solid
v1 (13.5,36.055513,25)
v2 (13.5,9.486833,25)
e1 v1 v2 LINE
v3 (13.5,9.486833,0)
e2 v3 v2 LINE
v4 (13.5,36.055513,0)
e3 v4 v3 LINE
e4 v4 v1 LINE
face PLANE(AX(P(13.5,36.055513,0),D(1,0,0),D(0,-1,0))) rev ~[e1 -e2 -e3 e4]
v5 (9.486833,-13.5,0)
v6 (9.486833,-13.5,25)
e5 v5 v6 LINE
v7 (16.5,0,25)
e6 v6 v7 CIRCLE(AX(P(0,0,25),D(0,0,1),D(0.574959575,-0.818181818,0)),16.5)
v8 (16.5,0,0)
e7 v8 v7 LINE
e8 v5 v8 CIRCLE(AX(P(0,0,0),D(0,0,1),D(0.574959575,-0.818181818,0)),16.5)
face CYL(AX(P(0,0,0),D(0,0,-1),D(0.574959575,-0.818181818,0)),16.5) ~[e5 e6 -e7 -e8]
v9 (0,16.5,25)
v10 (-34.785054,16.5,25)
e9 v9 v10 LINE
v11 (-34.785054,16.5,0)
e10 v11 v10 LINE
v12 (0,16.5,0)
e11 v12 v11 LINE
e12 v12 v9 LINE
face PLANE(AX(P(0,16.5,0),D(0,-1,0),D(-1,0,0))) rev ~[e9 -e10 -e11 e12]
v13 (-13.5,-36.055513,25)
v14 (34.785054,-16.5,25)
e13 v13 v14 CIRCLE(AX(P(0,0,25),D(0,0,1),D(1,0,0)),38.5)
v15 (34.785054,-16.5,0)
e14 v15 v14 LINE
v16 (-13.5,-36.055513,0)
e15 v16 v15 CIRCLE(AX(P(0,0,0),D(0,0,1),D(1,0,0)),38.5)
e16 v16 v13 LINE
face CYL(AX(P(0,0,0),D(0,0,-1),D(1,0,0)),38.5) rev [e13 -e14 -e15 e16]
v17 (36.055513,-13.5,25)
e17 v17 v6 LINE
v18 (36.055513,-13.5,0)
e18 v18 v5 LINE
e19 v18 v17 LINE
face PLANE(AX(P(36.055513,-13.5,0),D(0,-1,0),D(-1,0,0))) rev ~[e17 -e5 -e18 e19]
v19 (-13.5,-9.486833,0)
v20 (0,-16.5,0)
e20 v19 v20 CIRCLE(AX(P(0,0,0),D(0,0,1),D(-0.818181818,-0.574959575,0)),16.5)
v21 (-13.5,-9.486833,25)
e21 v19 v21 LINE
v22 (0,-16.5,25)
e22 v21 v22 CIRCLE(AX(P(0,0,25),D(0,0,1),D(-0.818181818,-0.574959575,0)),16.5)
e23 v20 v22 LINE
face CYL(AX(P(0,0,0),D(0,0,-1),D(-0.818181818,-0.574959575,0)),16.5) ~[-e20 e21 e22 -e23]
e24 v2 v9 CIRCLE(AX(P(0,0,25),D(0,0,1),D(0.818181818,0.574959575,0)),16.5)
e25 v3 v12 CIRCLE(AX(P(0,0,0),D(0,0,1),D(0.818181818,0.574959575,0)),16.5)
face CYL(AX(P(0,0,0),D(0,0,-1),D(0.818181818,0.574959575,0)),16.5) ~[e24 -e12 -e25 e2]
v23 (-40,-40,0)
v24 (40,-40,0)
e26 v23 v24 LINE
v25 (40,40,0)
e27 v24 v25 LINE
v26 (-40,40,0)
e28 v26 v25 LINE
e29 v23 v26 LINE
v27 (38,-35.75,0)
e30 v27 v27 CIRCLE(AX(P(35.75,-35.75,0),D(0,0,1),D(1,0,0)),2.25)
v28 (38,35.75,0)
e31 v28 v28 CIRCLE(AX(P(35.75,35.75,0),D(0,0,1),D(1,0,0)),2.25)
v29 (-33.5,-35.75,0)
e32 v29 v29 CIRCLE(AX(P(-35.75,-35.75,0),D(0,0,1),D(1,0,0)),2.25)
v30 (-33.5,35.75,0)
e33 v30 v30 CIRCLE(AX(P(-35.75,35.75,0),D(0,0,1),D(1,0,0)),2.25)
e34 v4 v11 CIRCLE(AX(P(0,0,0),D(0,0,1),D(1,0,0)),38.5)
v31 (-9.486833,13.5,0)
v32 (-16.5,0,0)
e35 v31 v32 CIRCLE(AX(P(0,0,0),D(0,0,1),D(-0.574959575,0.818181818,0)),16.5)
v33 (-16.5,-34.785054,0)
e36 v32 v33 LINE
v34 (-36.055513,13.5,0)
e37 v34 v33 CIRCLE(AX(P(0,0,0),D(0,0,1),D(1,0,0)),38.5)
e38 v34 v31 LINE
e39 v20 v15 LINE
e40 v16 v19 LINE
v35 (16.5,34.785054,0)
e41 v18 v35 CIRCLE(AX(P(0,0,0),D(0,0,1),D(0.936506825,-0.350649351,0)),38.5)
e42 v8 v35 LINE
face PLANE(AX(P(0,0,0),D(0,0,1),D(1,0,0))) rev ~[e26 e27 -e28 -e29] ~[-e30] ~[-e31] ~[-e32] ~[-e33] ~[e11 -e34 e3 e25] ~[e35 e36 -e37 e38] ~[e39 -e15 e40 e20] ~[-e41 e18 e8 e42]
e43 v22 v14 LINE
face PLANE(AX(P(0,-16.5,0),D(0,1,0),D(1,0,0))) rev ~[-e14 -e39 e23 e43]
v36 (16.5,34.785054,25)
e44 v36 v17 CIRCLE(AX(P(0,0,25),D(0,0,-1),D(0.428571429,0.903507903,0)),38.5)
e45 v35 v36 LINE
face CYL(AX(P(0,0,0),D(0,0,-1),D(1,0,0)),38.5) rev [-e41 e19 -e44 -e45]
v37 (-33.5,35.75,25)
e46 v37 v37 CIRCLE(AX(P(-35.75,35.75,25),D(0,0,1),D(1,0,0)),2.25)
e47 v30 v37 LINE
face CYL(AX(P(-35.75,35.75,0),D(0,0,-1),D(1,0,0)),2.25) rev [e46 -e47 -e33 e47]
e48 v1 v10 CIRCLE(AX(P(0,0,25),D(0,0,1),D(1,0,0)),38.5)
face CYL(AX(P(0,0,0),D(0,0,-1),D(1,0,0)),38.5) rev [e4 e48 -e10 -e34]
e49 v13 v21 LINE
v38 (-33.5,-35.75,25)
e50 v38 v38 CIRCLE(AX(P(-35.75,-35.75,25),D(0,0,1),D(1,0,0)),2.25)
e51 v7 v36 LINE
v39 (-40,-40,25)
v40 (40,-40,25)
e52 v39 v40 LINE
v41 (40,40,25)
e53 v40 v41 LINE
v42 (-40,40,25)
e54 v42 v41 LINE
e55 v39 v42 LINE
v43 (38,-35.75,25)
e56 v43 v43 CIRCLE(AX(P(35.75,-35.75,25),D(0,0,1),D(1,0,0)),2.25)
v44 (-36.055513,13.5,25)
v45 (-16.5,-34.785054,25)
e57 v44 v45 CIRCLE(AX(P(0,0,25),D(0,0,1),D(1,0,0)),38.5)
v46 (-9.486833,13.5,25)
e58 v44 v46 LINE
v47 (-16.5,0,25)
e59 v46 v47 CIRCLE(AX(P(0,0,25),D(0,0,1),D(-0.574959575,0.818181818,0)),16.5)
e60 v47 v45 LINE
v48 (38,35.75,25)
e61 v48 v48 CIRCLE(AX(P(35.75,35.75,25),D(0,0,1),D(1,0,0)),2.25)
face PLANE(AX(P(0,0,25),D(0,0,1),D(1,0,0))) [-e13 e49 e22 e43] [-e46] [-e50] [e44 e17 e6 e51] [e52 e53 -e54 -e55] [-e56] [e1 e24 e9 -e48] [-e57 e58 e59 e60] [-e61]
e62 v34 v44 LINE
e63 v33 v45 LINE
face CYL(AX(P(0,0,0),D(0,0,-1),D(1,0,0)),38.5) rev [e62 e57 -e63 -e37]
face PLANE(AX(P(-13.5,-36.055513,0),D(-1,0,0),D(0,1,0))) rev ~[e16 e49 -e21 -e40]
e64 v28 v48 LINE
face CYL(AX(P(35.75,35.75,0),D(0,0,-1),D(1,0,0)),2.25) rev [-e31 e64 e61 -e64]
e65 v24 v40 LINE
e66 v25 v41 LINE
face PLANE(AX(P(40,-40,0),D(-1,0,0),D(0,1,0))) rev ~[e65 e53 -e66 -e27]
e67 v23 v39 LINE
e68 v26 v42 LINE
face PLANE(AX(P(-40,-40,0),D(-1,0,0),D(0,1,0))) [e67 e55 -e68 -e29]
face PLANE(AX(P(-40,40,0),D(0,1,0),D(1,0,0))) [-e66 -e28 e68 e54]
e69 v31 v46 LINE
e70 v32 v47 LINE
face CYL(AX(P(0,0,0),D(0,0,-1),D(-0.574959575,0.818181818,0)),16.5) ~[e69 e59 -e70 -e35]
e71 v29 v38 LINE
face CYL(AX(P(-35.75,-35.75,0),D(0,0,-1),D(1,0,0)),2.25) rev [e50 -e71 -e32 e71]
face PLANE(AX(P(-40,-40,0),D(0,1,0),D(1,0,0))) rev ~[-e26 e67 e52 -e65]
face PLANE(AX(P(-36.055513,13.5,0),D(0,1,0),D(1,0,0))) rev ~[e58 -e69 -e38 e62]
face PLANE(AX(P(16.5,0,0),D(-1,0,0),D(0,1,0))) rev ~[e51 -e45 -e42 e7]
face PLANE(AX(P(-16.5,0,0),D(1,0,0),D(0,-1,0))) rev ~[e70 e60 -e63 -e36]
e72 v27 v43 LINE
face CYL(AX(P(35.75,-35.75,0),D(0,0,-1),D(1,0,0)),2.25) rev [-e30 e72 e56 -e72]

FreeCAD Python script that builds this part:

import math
import FreeCAD as App
import Part
import Sketcher
Q = App.Units.Quantity

doc = App.newDocument("Part")
body = doc.addObject("PartDesign::Body", "Body")

# Sketch on XY plane
sketch1 = doc.addObject("Sketcher::SketchObject", "Sketch")
body.addObject(sketch1)
sketch1.AttachmentSupport = (doc.XY_Plane, [""])
sketch1.MapMode = "FlatFace"
sketch1.addGeometry([
    Part.LineSegment(App.Vector(-40, 40, 0), App.Vector(-40, -40, 0)),  # 0
    Part.LineSegment(App.Vector(-40, -40, 0), App.Vector(40, -40, 0)),  # 1
    Part.LineSegment(App.Vector(40, -40, 0), App.Vector(40, 40, 0)),  # 2
    Part.LineSegment(App.Vector(40, 40, 0), App.Vector(-40, 40, 0)),  # 3
    Part.Circle(App.Vector(-35.75, -35.75, 0), App.Vector(0, 0, 1), 2.25),  # 4
    Part.Circle(App.Vector(35.75, -35.75, 0), App.Vector(0, 0, 1), 2.25),  # 5
    Part.Circle(App.Vector(-35.75, 35.75, 0), App.Vector(0, 0, 1), 2.25),  # 6
    Part.Circle(App.Vector(0, 0, 0), App.Vector(0, 0, 1), 38.5),  # 7
    Part.Circle(App.Vector(35.75, 35.75, 0), App.Vector(0, 0, 1), 2.25),  # 8
], False)
sketch1.addConstraint([
    Sketcher.Constraint("Coincident", 0, 2, 1, 1),
    Sketcher.Constraint("Coincident", 1, 2, 2, 1),
    Sketcher.Constraint("Coincident", 2, 2, 3, 1),
    Sketcher.Constraint("Coincident", 3, 2, 0, 1),
    Sketcher.Constraint("Vertical", 0),
    Sketcher.Constraint("Horizontal", 1),
    Sketcher.Constraint("Vertical", 2),
    Sketcher.Constraint("Horizontal", 3),
    Sketcher.Constraint("Coincident", 7, 3, -1, 1),
    Sketcher.Constraint("Equal", 4, 5),
    Sketcher.Constraint("Equal", 5, 6),
    Sketcher.Constraint("Equal", 6, 8),
    Sketcher.Constraint("Symmetric", 5, 3, 6, 3, -1, 1),
    Sketcher.Constraint("Symmetric", 4, 3, 8, 3, -1, 1),
    Sketcher.Constraint("Symmetric", 0, 2, 2, 2, -1, 1),
    Sketcher.Constraint("Symmetric", 4, 3, 5, 3, -2),
    Sketcher.Constraint("Equal", 3, 0),
    Sketcher.Constraint("Diameter", 7, Q("77 mm")),
    Sketcher.Constraint("Diameter", 4, Q("4.5 mm")),
    Sketcher.Constraint("DistanceX", 1, 1, 1, 2, Q("80 mm")),
    Sketcher.Constraint("DistanceX", 4, 3, 5, 3, Q("71.5 mm")),
    Sketcher.Constraint("DistanceY", 4, 3, 6, 3, Q("71.5 mm")),
])
pad1 = doc.addObject("PartDesign::Pad", "Pad")
body.addObject(pad1)
pad1.Profile = sketch1
pad1.Length = 25

# Sketch on XY plane
sketch2 = doc.addObject("Sketcher::SketchObject", "Sketch001")
body.addObject(sketch2)
sketch2.AttachmentSupport = (doc.XY_Plane, [""])
sketch2.MapMode = "FlatFace"
sketch2.addGeometry([
    Part.ArcOfCircle(Part.Circle(App.Vector(0, 0, 0), App.Vector(0, 0, 1), 16.5), math.radians(-54.903199), math.radians(0)),  # 0
    Part.LineSegment(App.Vector(16.5, 0, 0), App.Vector(16.5, 34.785054, 0)),  # 1
    Part.ArcOfCircle(Part.Circle(App.Vector(0, 0, 0), App.Vector(0, 0, 1), 38.5), math.radians(64.623066), math.radians(69.472963)),  # 2
    Part.LineSegment(App.Vector(13.5, 36.055513, 0), App.Vector(13.5, 9.486833, 0)),  # 3
    Part.ArcOfCircle(Part.Circle(App.Vector(0, 0, 0), App.Vector(0, 0, 1), 16.5), math.radians(35.096801), math.radians(90)),  # 4
    Part.LineSegment(App.Vector(0, 16.5, 0), App.Vector(-34.785054, 16.5, 0)),  # 5
    Part.ArcOfCircle(Part.Circle(App.Vector(0, 0, 0), App.Vector(0, 0, 1), 38.5), math.radians(154.623066), math.radians(159.472963)),  # 6
    Part.LineSegment(App.Vector(-36.055513, 13.5, 0), App.Vector(-9.486833, 13.5, 0)),  # 7
    Part.ArcOfCircle(Part.Circle(App.Vector(0, 0, 0), App.Vector(0, 0, 1), 16.5), math.radians(125.096801), math.radians(180)),  # 8
    Part.LineSegment(App.Vector(-16.5, 0, 0), App.Vector(-16.5, -34.785054, 0)),  # 9
    Part.ArcOfCircle(Part.Circle(App.Vector(0, 0, 0), App.Vector(0, 0, 1), 38.5), math.radians(-115.376934), math.radians(-110.527037)),  # 10
    Part.LineSegment(App.Vector(-13.5, -36.055513, 0), App.Vector(-13.5, -9.486833, 0)),  # 11
    Part.ArcOfCircle(Part.Circle(App.Vector(0, 0, 0), App.Vector(0, 0, 1), 16.5), math.radians(-144.903199), math.radians(-90)),  # 12
    Part.LineSegment(App.Vector(0, -16.5, 0), App.Vector(34.785054, -16.5, 0)),  # 13
    Part.ArcOfCircle(Part.Circle(App.Vector(0, 0, 0), App.Vector(0, 0, 1), 38.5), math.radians(-25.376934), math.radians(-20.527037)),  # 14
    Part.LineSegment(App.Vector(36.055513, -13.5, 0), App.Vector(9.486833, -13.5, 0)),  # 15
], False)
sketch2.addConstraint([
    Sketcher.Constraint("Tangent", 0, 2, 1, 1),
    Sketcher.Constraint("Coincident", 1, 2, 2, 1),
    Sketcher.Constraint("Coincident", 2, 2, 3, 1),
    Sketcher.Constraint("Coincident", 3, 2, 4, 1),
    Sketcher.Constraint("Tangent", 4, 2, 5, 1),
    Sketcher.Constraint("Coincident", 5, 2, 6, 1),
    Sketcher.Constraint("Coincident", 6, 2, 7, 1),
    Sketcher.Constraint("Coincident", 7, 2, 8, 1),
    Sketcher.Constraint("Tangent", 8, 2, 9, 1),
    Sketcher.Constraint("Coincident", 9, 2, 10, 1),
    Sketcher.Constraint("Coincident", 10, 2, 11, 1),
    Sketcher.Constraint("Coincident", 11, 2, 12, 1),
    Sketcher.Constraint("Tangent", 12, 2, 13, 1),
    Sketcher.Constraint("Coincident", 13, 2, 14, 1),
    Sketcher.Constraint("Coincident", 14, 2, 15, 1),
    Sketcher.Constraint("Coincident", 15, 2, 0, 1),
    Sketcher.Constraint("Vertical", 1),
    Sketcher.Constraint("Vertical", 3),
    Sketcher.Constraint("Horizontal", 5),
    Sketcher.Constraint("Horizontal", 7),
    Sketcher.Constraint("Vertical", 9),
    Sketcher.Constraint("Vertical", 11),
    Sketcher.Constraint("Horizontal", 13),
    Sketcher.Constraint("Horizontal", 15),
    Sketcher.Constraint("Coincident", 0, 3, -1, 1),
    Sketcher.Constraint("Coincident", 2, 3, -1, 1),
    Sketcher.Constraint("Coincident", 4, 3, -1, 1),
    Sketcher.Constraint("Coincident", 6, 3, -1, 1),
    Sketcher.Constraint("Coincident", 8, 3, -1, 1),
    Sketcher.Constraint("Coincident", 10, 3, -1, 1),
    Sketcher.Constraint("Coincident", 12, 3, -1, 1),
    Sketcher.Constraint("Coincident", 14, 3, -1, 1),
    Sketcher.Constraint("Equal", 0, 4),
    Sketcher.Constraint("Equal", 2, 6),
    Sketcher.Constraint("Equal", 4, 8),
    Sketcher.Constraint("Equal", 6, 10),
    Sketcher.Constraint("Equal", 8, 12),
    Sketcher.Constraint("Equal", 10, 14),
    Sketcher.Constraint("Equal", 7, 15),
    Sketcher.Constraint("Equal", 15, 3),
    Sketcher.Constraint("Equal", 3, 11),
    Sketcher.Constraint("Radius", 0, Q("16.5 mm")),
    Sketcher.Constraint("Radius", 2, Q("38.5 mm")),
    Sketcher.Constraint("DistanceX", 2, 2, 1, 2, Q("3 mm")),
])
pad2 = doc.addObject("PartDesign::Pad", "Pad001")
body.addObject(pad2)
pad2.Profile = sketch2
pad2.Length = 25

doc.recompute()
